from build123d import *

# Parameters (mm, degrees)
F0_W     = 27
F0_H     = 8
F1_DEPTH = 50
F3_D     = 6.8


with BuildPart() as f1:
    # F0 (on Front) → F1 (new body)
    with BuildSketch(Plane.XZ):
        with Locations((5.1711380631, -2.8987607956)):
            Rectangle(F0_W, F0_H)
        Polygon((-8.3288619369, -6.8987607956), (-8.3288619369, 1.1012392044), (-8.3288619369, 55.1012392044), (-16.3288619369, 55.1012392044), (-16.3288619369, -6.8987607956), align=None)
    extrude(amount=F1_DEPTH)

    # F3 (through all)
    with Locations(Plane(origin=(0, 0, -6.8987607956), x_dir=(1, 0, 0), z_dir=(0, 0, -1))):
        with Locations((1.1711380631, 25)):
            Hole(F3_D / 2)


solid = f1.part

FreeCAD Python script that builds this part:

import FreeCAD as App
import Part
import Sketcher
from FreeCAD import Vector


def add_polygon(sketch, points):
    """Adds a closed chain of lines whose ends are joined by coincident constraints."""
    first, n = sketch.GeometryCount, len(points)
    for a, b in zip(points, points[1:] + points[:1]):
        sketch.addGeometry(Part.LineSegment(App.Vector(*a, 0), App.Vector(*b, 0)), False)
    for i in range(n):
        sketch.addConstraint(Sketcher.Constraint("Coincident", first + i, 2, first + (i + 1) % n, 1))

doc = App.newDocument("Part")
body = doc.addObject("PartDesign::Body", "Body")

# Sketch on XZ plane
sketch1 = body.newObject("Sketcher::SketchObject", "Sketch")
sketch1.AttachmentSupport = (doc.getObject("XZ_Plane"), [""])
sketch1.MapMode = "FlatFace"
add_polygon(sketch1, [(18.671138, -6.898761), (18.671138, 1.101239), (-8.328862, 1.101239), (-8.328862, 55.101239), (-16.328862, 55.101239), (-16.328862, -6.898761)])  # lines 0-5
sketch1.addConstraint(Sketcher.Constraint("Vertical", 0))
sketch1.addConstraint(Sketcher.Constraint("Horizontal", 1))
sketch1.addConstraint(Sketcher.Constraint("Vertical", 2))
sketch1.addConstraint(Sketcher.Constraint("Horizontal", 3))
sketch1.addConstraint(Sketcher.Constraint("Vertical", 4))
sketch1.addConstraint(Sketcher.Constraint("Horizontal", 5))
sketch1.addConstraint(Sketcher.Constraint("Equal", 3, 0))
sketch1.addConstraint(Sketcher.Constraint("DistanceX", 1, 2, 1, 1, 27.0))
sketch1.addConstraint(Sketcher.Constraint("DistanceX", 3, 2, 3, 1, 8.0))
sketch1.addConstraint(Sketcher.Constraint("DistanceY", 2, 1, 2, 2, 54.0))
sketch1.addConstraint(Sketcher.Constraint("DistanceX", -1, 1, 0, 2, 18.671138))
sketch1.addConstraint(Sketcher.Constraint("DistanceY", -1, 1, 0, 2, 1.101239))
pad1 = body.newObject("PartDesign::Pad", "Pad")
pad1.Profile = sketch1
pad1.Length = 50

# Sketch on XY plane
sketch2 = body.newObject("Sketcher::SketchObject", "Sketch001")
sketch2.AttachmentSupport = (doc.getObject("XY_Plane"), [""])
sketch2.MapMode = "FlatFace"
sketch2.AttachmentOffset = App.Placement(Vector(0, 0, -6.898761), App.Rotation())
sketch2.addGeometry(Part.Circle(Vector(1.171138, -25, 0), Vector(0, 0, 1), 3.4), False)
sketch2.addConstraint(Sketcher.Constraint("Diameter", 0, 6.8))
sketch2.addConstraint(Sketcher.Constraint("DistanceY", 0, 3, -1, 1, 25.0))
sketch2.addConstraint(Sketcher.Constraint("DistanceX", -1, 1, 0, 3, 1.171138))
doc.recompute()
hole = body.newObject("PartDesign::Hole", "Hole")
hole.Profile = sketch2
hole.ThreadType = "None"
hole.Diameter = 6.8
hole.DepthType = "ThroughAll"
hole.Reversed = True

doc.recompute()
